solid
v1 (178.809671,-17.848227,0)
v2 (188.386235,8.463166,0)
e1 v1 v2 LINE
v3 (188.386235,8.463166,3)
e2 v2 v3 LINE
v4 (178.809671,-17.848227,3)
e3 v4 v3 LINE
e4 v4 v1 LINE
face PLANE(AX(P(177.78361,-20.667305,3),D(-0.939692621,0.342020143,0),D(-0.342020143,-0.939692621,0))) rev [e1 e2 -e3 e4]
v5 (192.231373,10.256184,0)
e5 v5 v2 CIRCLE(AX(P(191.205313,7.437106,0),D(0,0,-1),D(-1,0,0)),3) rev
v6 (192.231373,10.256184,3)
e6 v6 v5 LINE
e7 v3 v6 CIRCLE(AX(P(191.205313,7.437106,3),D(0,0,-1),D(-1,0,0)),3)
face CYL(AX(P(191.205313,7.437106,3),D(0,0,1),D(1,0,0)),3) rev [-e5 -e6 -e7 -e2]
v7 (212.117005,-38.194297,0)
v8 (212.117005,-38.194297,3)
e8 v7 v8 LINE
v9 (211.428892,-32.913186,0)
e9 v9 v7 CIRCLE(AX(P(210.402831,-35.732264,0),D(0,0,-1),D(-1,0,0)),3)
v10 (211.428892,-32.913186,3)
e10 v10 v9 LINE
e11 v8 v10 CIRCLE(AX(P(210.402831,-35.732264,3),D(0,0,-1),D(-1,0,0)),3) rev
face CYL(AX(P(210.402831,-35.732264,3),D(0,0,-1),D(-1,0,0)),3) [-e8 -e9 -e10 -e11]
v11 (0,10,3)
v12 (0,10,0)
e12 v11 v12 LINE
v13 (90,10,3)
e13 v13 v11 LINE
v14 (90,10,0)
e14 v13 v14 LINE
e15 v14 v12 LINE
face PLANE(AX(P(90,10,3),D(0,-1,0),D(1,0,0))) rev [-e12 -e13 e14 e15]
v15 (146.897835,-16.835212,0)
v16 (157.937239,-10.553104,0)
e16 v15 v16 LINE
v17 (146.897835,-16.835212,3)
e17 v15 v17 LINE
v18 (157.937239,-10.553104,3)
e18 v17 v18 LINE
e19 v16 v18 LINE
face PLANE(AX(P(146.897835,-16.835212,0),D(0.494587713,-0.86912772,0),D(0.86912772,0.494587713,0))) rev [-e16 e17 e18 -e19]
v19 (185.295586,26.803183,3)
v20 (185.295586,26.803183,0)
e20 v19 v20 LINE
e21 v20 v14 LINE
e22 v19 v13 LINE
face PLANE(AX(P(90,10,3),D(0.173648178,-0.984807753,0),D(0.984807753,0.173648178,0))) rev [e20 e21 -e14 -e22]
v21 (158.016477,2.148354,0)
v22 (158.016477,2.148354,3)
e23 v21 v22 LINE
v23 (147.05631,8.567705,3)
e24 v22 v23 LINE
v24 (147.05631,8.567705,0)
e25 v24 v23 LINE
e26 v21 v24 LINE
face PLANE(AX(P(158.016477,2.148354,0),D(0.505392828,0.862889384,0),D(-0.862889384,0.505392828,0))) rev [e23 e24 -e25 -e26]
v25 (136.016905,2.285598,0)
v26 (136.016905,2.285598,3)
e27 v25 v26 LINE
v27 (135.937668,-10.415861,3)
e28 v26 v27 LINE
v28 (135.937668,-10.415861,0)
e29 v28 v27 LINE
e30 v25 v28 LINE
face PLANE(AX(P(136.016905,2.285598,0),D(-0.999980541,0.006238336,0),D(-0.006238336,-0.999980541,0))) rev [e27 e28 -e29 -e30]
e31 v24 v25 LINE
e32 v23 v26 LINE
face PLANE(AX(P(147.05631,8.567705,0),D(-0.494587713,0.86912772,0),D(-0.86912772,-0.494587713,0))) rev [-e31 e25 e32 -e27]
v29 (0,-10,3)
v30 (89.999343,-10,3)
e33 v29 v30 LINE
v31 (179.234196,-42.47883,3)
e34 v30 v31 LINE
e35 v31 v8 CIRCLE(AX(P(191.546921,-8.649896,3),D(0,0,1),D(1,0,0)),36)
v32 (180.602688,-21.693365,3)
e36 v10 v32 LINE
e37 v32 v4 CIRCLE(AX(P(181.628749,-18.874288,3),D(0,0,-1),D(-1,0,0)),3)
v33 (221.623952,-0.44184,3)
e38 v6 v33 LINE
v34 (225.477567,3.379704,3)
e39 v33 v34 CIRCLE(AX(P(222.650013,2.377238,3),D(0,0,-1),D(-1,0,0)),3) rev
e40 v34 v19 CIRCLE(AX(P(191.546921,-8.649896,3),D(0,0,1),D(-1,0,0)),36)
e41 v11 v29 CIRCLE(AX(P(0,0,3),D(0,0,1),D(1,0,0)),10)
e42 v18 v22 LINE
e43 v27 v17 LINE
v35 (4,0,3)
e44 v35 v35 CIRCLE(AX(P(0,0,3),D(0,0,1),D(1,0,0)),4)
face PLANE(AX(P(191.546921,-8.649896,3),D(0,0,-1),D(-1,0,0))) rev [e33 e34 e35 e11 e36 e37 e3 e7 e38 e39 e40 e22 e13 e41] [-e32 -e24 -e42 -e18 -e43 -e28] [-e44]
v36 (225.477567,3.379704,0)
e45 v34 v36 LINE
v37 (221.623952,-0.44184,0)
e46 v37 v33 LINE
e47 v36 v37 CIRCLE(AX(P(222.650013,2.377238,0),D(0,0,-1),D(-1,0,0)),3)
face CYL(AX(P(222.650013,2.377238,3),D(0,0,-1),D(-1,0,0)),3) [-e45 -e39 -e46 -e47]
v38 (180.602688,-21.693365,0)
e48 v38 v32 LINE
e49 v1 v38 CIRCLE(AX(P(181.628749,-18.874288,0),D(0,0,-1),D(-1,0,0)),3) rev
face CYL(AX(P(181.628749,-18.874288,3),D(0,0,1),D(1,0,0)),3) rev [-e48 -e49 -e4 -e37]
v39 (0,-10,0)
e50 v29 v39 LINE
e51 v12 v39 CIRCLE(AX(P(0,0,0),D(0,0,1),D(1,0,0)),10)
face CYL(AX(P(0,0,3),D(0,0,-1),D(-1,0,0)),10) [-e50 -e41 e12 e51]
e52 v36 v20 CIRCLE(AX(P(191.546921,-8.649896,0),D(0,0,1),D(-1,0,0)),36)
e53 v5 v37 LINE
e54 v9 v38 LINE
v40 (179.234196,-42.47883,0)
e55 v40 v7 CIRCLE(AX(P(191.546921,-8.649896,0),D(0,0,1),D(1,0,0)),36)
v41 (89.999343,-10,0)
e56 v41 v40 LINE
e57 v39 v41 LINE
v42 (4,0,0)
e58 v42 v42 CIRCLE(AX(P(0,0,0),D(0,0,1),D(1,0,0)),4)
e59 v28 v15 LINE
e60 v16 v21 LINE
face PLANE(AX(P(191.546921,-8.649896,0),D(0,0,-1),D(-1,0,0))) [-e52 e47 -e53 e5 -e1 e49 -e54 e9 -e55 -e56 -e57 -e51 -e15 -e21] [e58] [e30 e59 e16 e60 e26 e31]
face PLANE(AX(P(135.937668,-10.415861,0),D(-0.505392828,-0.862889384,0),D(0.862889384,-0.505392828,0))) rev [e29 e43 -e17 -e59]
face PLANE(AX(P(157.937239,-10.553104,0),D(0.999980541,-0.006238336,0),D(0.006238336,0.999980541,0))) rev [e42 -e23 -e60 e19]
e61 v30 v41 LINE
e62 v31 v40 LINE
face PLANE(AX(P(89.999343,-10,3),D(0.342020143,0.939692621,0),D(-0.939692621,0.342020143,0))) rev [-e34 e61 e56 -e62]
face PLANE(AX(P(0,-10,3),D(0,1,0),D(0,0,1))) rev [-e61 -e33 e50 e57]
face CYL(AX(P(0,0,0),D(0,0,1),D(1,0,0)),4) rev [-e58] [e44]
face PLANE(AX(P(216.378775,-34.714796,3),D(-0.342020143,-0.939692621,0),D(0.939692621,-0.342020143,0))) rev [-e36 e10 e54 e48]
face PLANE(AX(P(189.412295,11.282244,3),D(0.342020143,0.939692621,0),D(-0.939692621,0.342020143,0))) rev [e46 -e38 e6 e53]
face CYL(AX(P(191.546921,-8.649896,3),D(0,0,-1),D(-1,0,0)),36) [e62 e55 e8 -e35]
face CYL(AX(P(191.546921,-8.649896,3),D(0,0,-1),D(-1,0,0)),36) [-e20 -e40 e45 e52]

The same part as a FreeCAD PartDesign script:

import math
import FreeCAD as App
import Part
import Sketcher
from FreeCAD import Vector
Q = App.Units.Quantity


def edges_at(feature, points):
    """Names of the edges that pass closest to the given points."""
    edges = feature.Shape.Edges
    near = lambda p: min(range(len(edges)), key=lambda i: edges[i].distToShape(Part.Vertex(*p))[0])
    return sorted({f"Edge{near(p) + 1}" for p in points})


def add_polygon(sketch, points):
    """Adds a closed chain of lines whose ends are joined by coincident constraints."""
    first, n = sketch.GeometryCount, len(points)
    for a, b in zip(points, points[1:] + points[:1]):
        sketch.addGeometry(Part.LineSegment(App.Vector(*a, 0), App.Vector(*b, 0)), False)
    for i in range(n):
        sketch.addConstraint(Sketcher.Constraint("Coincident", first + i, 2, first + (i + 1) % n, 1))

doc = App.newDocument("Part")
body = doc.addObject("PartDesign::Body", "Body")

# Sketch on XY plane
sketch1 = doc.addObject("Sketcher::SketchObject", "Sketch")
body.addObject(sketch1)
sketch1.AttachmentSupport = (doc.XY_Plane, [""])
sketch1.MapMode = "FlatFace"
sketch1.addGeometry([
    Part.LineSegment(Vector(90, 10, 0), Vector(0, 10, 0)),  # 0
    Part.ArcOfCircle(Part.Circle(Vector(0, 0, 0), Vector(0, 0, 1), 10), math.radians(90), math.radians(270)),  # 1
    Part.LineSegment(Vector(0, -10, 0), Vector(90, -10, 0)),  # 2
    Part.LineSegment(Vector(90, -10, 0), Vector(179, -42, 0)),  # 3
    Part.ArcOfCircle(Part.Circle(Vector(192, -9, 0), Vector(0, 0, 1), 36), math.radians(-110), math.radians(-46)),  # 4
    Part.LineSegment(Vector(216, -35, 0), Vector(178, -21, 0)),  # 5
    Part.LineSegment(Vector(178, -21, 0), Vector(189, 11, 0)),  # 6
    Part.LineSegment(Vector(189, 11, 0), Vector(227, -2, 0)),  # 7
    Part.ArcOfCircle(Part.Circle(Vector(192, -9, 0), Vector(0, 0, 1), 36), math.radians(10), math.radians(100)),  # 8
    Part.LineSegment(Vector(185, 27, 0), Vector(90, 10, 0)),  # 9
], False)
sketch1.addConstraint([
    Sketcher.Constraint("Tangent", 0, 2, 1, 1),
    Sketcher.Constraint("Tangent", 1, 2, 2, 1),
    Sketcher.Constraint("Coincident", 2, 2, 3, 1),
    Sketcher.Constraint("Tangent", 3, 2, 4, 1),
    Sketcher.Constraint("Coincident", 4, 2, 5, 1),
    Sketcher.Constraint("Coincident", 5, 2, 6, 1),
    Sketcher.Constraint("Coincident", 6, 2, 7, 1),
    Sketcher.Constraint("Coincident", 7, 2, 8, 1),
    Sketcher.Constraint("Tangent", 8, 2, 9, 1),
    Sketcher.Constraint("Coincident", 9, 2, 0, 1),
    Sketcher.Constraint("Horizontal", 0),
    Sketcher.Constraint("Horizontal", 2),
    Sketcher.Constraint("Coincident", 1, 3, -1, 1),
    Sketcher.Constraint("Coincident", 8, 3, 4, 3),
    Sketcher.Constraint("Equal", 4, 8),
    Sketcher.Constraint("Parallel", 3, 5),
    Sketcher.Constraint("Perpendicular", 5, 6),
    Sketcher.Constraint("Perpendicular", 6, 7),
    Sketcher.Constraint("Radius", 1, Q("10 mm")),
    Sketcher.Constraint("Radius", 4, Q("36 mm")),
    Sketcher.Constraint("DistanceX", 0, 2, 0, 1, Q("90 mm")),
    Sketcher.Constraint("Angle", 3, Q("-20 deg")),
    Sketcher.Constraint("Angle", 9, Q("-170 deg")),
    Sketcher.Constraint("Distance", 6, Q("34 mm")),
    Sketcher.Constraint("Distance", 7, Q("40 mm")),
    Sketcher.Constraint("DistanceX", -1, 1, 7, 2, Q("227 mm")),
    Sketcher.Constraint("DistanceY", 4, 2, 8, 3, Q("26.0649 mm")),
])
pad1 = doc.addObject("PartDesign::Pad", "Pad")
body.addObject(pad1)
pad1.Profile = sketch1
pad1.Length = 3

# Sketch on XY plane
sketch2 = doc.addObject("Sketcher::SketchObject", "Sketch001")
body.addObject(sketch2)
sketch2.AttachmentSupport = (doc.XY_Plane, [""])
sketch2.MapMode = "FlatFace"
sketch2.AttachmentOffset = App.Placement(Vector(0, 0, 3), App.Rotation())
sketch2.addGeometry(Part.Circle(Vector(0, 0, 0), Vector(0, 0, 1), 4), False)  # 0
add_polygon(sketch2, [(157.9, -10.6), (158, 2.1), (147.1, 8.6), (136, 2.3), (135.9, -10.4), (146.9, -16.8)])  # lines 1-6
sketch2.addConstraint([
    Sketcher.Constraint("Coincident", 0, 3, -1, 1),
    Sketcher.Constraint("Parallel", 1, 4),
    Sketcher.Constraint("Parallel", 2, 5),
    Sketcher.Constraint("Parallel", 3, 6),
    Sketcher.Constraint("Equal", 1, 2),
    Sketcher.Constraint("Equal", 2, 3),
    Sketcher.Constraint("Equal", 3, 4),
    Sketcher.Constraint("Diameter", 0, Q("8 mm")),
    Sketcher.Constraint("DistanceX", -1, 1, 2, 2, Q("147.05631 mm")),
    Sketcher.Constraint("DistanceY", 4, 2, -1, 1, Q("10.415861 mm")),
    Sketcher.Constraint("DistanceX", -1, 1, 6, 2, Q("157.937239 mm")),
    Sketcher.Constraint("DistanceY", 1, 2, 2, 2, Q("6.419351 mm")),
    Sketcher.Constraint("DistanceX", 3, 2, 1, 2, Q("21.999572 mm")),
    Sketcher.Constraint("DistanceY", 4, 2, 3, 2, Q("12.701459 mm")),
])
pocket1 = doc.addObject("PartDesign::Pocket", "Pocket")
body.addObject(pocket1)
pocket1.Profile = sketch2
pocket1.Length = 3
doc.recompute()

fillet = doc.addObject("PartDesign::Fillet", "Fillet")
body.addObject(fillet)
fillet.Base = (pocket1, edges_at(pocket1, [(177.784, -20.667, 1.5)]))
fillet.Radius = 3
doc.recompute()

fillet2 = doc.addObject("PartDesign::Fillet", "Fillet001")
body.addObject(fillet2)
fillet2.Base = (fillet, edges_at(fillet, [(189.412, 11.282, 1.5)]))
fillet2.Radius = 3
doc.recompute()

fillet3 = doc.addObject("PartDesign::Fillet", "Fillet002")
body.addObject(fillet3)
fillet3.Base = (fillet2, edges_at(fillet2, [(227, -2.399, 1.5)]))
fillet3.Radius = 3
doc.recompute()

fillet4 = doc.addObject("PartDesign::Fillet", "Fillet003")
body.addObject(fillet4)
fillet4.Base = (fillet3, edges_at(fillet3, [(216.379, -34.715, 1.5)]))
fillet4.Radius = 3

doc.recompute()
